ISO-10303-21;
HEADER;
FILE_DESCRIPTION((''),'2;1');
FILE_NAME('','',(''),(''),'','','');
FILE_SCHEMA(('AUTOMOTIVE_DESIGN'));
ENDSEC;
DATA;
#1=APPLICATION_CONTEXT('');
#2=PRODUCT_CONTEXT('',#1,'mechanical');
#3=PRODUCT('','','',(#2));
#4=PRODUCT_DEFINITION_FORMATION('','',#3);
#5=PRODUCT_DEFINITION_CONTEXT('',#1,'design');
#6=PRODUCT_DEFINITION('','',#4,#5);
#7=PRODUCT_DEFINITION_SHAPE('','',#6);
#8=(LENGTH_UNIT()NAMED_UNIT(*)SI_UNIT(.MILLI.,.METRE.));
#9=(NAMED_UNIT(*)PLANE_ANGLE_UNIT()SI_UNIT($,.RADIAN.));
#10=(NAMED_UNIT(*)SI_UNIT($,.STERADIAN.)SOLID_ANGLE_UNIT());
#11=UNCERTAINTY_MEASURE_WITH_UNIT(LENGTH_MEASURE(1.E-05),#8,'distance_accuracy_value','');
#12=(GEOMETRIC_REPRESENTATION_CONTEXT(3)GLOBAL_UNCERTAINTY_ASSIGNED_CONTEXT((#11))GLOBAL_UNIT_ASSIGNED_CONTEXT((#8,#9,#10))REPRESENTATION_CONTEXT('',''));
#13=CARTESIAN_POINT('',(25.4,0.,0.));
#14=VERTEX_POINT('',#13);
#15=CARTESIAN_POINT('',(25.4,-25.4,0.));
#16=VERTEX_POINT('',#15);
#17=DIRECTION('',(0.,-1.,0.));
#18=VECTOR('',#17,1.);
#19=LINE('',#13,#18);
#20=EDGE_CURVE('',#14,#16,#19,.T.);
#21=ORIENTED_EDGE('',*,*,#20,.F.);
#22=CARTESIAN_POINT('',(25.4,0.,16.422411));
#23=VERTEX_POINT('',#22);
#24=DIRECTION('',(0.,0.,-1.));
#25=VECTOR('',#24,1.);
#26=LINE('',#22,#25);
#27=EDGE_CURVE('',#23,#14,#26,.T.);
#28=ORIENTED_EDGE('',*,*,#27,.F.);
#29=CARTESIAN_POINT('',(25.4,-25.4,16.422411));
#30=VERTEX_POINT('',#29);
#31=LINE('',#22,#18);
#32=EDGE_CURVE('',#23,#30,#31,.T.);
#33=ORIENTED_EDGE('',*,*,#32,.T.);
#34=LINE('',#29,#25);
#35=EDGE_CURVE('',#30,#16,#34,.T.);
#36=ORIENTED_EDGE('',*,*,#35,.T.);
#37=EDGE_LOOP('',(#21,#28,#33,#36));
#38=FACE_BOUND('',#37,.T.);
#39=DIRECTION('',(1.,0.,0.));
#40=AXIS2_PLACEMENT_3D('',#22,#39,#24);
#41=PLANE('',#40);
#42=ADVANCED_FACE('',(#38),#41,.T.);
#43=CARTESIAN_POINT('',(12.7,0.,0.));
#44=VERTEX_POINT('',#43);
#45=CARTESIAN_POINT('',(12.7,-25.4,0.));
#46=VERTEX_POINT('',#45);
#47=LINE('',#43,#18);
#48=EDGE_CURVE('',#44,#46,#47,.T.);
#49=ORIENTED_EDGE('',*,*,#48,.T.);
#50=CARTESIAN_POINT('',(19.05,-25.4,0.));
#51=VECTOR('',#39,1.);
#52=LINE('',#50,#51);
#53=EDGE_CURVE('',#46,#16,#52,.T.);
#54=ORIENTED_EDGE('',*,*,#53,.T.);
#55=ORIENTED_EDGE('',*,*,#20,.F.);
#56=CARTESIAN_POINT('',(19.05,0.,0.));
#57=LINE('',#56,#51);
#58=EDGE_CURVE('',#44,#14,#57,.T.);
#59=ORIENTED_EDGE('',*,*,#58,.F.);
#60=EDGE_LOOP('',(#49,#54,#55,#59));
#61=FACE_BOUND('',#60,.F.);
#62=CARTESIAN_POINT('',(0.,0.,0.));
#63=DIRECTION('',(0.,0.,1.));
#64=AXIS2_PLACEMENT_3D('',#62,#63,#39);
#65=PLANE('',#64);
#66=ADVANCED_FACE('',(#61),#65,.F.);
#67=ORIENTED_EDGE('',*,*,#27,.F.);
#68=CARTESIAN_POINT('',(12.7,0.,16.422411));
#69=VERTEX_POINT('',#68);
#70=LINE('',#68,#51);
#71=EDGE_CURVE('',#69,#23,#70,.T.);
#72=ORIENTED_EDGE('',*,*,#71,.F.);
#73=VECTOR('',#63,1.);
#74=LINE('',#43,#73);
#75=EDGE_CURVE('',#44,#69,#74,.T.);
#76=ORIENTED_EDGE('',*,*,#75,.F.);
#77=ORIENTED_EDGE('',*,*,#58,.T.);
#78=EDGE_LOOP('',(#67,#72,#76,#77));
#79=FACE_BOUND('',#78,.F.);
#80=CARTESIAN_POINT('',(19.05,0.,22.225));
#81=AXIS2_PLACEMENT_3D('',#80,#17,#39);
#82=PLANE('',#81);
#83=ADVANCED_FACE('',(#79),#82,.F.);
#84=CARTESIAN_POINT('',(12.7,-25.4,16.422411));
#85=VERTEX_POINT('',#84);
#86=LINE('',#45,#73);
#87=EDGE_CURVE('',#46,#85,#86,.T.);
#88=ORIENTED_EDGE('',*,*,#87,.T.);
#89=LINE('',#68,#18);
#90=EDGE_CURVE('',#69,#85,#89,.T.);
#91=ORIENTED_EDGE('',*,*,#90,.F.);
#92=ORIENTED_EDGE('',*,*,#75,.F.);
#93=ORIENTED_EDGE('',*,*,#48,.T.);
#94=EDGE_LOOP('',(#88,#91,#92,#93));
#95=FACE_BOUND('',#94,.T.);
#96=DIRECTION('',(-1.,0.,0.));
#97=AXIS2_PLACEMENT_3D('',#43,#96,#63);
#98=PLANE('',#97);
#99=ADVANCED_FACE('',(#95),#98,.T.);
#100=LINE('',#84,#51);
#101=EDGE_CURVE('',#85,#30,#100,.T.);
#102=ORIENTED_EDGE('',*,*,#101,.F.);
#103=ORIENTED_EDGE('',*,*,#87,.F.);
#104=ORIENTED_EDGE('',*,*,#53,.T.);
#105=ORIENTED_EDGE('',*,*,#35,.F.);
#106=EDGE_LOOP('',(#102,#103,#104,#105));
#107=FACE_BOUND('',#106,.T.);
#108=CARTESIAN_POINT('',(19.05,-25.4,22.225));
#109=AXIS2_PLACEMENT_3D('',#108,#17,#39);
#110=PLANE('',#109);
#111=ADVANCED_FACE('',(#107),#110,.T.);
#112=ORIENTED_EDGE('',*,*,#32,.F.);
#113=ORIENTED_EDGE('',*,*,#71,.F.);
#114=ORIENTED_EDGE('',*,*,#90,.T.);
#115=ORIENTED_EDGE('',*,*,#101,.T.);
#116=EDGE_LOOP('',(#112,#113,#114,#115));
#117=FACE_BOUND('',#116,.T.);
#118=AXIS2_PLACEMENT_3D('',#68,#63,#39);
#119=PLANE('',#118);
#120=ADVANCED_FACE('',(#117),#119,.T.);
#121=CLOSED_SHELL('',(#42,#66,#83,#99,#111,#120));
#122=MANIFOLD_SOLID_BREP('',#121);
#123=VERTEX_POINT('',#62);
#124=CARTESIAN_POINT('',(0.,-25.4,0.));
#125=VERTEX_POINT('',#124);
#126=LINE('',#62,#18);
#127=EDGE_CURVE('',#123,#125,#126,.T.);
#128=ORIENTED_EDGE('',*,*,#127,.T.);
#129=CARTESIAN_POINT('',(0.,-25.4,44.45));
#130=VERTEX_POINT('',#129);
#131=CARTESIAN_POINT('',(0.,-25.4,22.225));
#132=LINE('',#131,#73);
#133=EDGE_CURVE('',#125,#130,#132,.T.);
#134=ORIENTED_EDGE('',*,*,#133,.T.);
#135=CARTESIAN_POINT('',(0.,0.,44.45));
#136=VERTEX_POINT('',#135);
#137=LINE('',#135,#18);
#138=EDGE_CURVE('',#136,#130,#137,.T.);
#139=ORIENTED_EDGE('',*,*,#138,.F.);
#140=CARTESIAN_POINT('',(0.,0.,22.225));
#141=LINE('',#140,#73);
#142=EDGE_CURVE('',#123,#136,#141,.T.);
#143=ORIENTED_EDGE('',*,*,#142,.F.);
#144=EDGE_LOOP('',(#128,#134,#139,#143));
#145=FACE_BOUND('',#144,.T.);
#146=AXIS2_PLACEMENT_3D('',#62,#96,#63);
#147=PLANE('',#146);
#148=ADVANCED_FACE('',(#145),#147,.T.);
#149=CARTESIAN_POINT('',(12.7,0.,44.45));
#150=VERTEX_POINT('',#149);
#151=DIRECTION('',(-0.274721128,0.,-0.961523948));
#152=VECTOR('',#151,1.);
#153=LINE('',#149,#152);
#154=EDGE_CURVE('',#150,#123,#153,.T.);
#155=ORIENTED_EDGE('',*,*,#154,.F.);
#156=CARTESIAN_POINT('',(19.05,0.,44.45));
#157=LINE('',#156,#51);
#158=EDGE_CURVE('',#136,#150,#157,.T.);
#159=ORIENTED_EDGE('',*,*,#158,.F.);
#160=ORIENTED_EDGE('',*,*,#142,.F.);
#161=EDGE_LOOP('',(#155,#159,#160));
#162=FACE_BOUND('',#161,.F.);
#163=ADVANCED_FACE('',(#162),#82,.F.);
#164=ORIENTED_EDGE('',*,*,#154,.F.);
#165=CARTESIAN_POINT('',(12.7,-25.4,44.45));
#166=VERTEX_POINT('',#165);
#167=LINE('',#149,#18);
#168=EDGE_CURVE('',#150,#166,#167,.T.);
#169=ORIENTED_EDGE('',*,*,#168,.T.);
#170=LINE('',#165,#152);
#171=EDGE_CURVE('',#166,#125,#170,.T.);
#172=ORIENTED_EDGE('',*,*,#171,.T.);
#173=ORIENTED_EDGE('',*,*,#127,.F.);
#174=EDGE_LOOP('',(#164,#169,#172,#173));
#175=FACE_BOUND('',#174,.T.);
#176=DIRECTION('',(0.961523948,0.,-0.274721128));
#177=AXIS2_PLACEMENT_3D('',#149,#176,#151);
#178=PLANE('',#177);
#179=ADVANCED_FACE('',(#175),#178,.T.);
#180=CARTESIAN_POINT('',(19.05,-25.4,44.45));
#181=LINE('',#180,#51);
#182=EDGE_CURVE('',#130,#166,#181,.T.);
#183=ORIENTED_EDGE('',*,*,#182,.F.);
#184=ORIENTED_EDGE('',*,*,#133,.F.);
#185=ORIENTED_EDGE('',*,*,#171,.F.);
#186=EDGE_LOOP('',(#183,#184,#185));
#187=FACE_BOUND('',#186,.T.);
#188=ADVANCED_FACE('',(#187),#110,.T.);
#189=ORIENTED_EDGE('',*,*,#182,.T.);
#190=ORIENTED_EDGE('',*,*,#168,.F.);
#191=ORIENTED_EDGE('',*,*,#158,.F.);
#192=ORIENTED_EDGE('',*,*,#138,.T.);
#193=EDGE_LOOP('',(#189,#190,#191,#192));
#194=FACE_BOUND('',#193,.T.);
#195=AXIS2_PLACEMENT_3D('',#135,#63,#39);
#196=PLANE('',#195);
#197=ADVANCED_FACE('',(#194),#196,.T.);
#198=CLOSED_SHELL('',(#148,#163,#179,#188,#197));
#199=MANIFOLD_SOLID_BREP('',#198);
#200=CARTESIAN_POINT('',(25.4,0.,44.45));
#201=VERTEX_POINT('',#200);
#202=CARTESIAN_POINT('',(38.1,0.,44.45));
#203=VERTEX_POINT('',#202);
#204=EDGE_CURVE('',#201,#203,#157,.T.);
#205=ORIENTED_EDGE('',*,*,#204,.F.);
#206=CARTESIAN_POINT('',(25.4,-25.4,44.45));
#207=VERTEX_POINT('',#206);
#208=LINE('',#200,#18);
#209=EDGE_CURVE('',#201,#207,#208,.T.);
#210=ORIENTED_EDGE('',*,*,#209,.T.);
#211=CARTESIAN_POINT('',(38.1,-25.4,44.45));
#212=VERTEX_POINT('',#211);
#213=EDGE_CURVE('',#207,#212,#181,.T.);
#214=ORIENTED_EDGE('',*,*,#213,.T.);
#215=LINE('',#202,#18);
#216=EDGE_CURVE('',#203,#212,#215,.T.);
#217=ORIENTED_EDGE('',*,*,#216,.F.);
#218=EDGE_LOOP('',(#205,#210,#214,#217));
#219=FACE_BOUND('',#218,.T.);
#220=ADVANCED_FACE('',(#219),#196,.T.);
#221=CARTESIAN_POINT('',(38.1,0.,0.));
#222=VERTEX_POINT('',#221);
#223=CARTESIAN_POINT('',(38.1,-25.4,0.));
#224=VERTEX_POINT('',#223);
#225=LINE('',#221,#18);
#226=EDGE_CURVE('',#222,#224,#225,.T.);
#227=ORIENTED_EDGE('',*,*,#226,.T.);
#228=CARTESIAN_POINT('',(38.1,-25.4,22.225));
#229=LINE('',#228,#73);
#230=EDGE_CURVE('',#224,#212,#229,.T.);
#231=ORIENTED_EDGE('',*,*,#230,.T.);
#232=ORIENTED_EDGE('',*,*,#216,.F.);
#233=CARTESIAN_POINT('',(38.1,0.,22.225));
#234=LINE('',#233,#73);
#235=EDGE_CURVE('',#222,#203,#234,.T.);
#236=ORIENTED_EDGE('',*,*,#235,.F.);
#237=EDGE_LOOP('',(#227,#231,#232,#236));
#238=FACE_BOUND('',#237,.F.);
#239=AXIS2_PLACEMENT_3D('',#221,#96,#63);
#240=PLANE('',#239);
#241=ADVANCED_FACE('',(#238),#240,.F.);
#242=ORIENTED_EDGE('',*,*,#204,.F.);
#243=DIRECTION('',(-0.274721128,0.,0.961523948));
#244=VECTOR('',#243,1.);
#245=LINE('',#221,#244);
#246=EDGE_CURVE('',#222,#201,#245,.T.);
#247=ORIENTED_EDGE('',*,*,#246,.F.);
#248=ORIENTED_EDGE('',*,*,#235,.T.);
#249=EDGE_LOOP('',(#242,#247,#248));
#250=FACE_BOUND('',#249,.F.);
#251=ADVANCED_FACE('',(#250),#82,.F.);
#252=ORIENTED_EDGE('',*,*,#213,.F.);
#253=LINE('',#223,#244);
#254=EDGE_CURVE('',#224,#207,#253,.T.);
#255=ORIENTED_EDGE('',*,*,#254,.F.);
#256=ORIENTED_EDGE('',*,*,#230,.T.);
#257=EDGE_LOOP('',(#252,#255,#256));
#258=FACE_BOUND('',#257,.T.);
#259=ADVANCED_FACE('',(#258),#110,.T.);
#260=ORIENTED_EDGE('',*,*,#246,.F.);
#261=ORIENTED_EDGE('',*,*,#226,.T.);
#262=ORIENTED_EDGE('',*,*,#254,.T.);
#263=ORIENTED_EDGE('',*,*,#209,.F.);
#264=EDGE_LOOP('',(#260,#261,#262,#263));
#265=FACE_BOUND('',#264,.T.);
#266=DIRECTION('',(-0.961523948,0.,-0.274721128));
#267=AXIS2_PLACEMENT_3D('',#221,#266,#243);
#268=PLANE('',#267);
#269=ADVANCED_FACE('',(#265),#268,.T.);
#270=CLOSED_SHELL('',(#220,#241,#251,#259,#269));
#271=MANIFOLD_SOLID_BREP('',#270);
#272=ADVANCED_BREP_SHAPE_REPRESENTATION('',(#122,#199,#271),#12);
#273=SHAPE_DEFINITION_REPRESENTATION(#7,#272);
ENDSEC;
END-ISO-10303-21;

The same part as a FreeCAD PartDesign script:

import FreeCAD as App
import Part
import Sketcher
Q = App.Units.Quantity


def add_polygon(sketch, points):
    """Adds a closed chain of lines whose ends are joined by coincident constraints."""
    first, n = sketch.GeometryCount, len(points)
    for a, b in zip(points, points[1:] + points[:1]):
        sketch.addGeometry(Part.LineSegment(App.Vector(*a, 0), App.Vector(*b, 0)), False)
    for i in range(n):
        sketch.addConstraint(Sketcher.Constraint("Coincident", first + i, 2, first + (i + 1) % n, 1))

doc = App.newDocument("Part")
body = doc.addObject("PartDesign::Body", "Body")

# Sketch on XZ plane
sketch1 = doc.addObject("Sketcher::SketchObject", "Sketch")
body.addObject(sketch1)
sketch1.AttachmentSupport = (doc.XZ_Plane, [""])
sketch1.MapMode = "FlatFace"
add_polygon(sketch1, [(0, 44), (0, 0), (38, 0), (38, 44)])  # lines 0-3
sketch1.addConstraint(Sketcher.Constraint("Vertical", 0))
sketch1.addConstraint(Sketcher.Constraint("Horizontal", 1))
sketch1.addConstraint(Sketcher.Constraint("Vertical", 2))
sketch1.addConstraint(Sketcher.Constraint("Horizontal", 3))
sketch1.addConstraint(Sketcher.Constraint("Coincident", 0, 2, -1, 1))
sketch1.addConstraint(Sketcher.Constraint("DistanceX", 1, 1, 1, 2, Q("1.5 in")))
sketch1.addConstraint(Sketcher.Constraint("DistanceY", 0, 2, 0, 1, Q("1.75 in")))
pad1 = doc.addObject("PartDesign::Pad", "Pad")
body.addObject(pad1)
pad1.Profile = sketch1
pad1.Length = Q("1 in")
body2 = doc.addObject("PartDesign::Body", "Body001")

# Sketch on XZ plane
sketch2 = doc.addObject("Sketcher::SketchObject", "Sketch001")
body2.addObject(sketch2)
sketch2.AttachmentSupport = (doc.getObject("XZ_Plane001"), [""])
sketch2.MapMode = "FlatFace"
add_polygon(sketch2, [(25, 44), (13, 44), (0, 0), (13, 0), (13, 16), (25, 16), (25, 0), (38, 0)])  # lines 0-7
sketch2.addConstraint(Sketcher.Constraint("Horizontal", 0))
sketch2.addConstraint(Sketcher.Constraint("Horizontal", 2))
sketch2.addConstraint(Sketcher.Constraint("Vertical", 3))
sketch2.addConstraint(Sketcher.Constraint("Horizontal", 4))
sketch2.addConstraint(Sketcher.Constraint("Vertical", 5))
sketch2.addConstraint(Sketcher.Constraint("Horizontal", 6))
sketch2.addConstraint(Sketcher.Constraint("Coincident", 1, 2, -1, 1))
sketch2.addConstraint(Sketcher.Constraint("PointOnObject", 5, 2, -1))
sketch2.addConstraint(Sketcher.Constraint("Vertical", 0, 2, 2, 2))
sketch2.addConstraint(Sketcher.Constraint("Vertical", 5, 2, 7, 2))
sketch2.addConstraint(Sketcher.Constraint("Equal", 0, 2))
sketch2.addConstraint(Sketcher.Constraint("Equal", 4, 6))
sketch2.addConstraint(Sketcher.Constraint("DistanceX", 0, 2, 0, 1, Q("0.5 in")))
sketch2.addConstraint(Sketcher.Constraint("DistanceY", -1, 1, 0, 2, Q("1.75 in")))
sketch2.addConstraint(Sketcher.Constraint("DistanceY", 3, 1, 3, 2, Q("16.422411 mm")))
pad2 = doc.addObject("PartDesign::Pad", "Pad001")
body2.addObject(pad2)
pad2.Profile = sketch2
pad2.Length = Q("1 in")
body3 = doc.addObject("PartDesign::Body", "Body002")

# Sketch on XZ plane
sketch3 = doc.addObject("Sketcher::SketchObject", "Sketch002")
body3.addObject(sketch3)
sketch3.AttachmentSupport = (doc.getObject("XZ_Plane002"), [""])
sketch3.MapMode = "FlatFace"
add_polygon(sketch3, [(25, 44), (13, 44), (0, 0), (13, 0), (13, 16), (25, 16), (25, 0), (38, 0)])  # lines 0-7
sketch3.addConstraint(Sketcher.Constraint("Horizontal", 0))
sketch3.addConstraint(Sketcher.Constraint("Horizontal", 2))
sketch3.addConstraint(Sketcher.Constraint("Vertical", 3))
sketch3.addConstraint(Sketcher.Constraint("Horizontal", 4))
sketch3.addConstraint(Sketcher.Constraint("Vertical", 5))
sketch3.addConstraint(Sketcher.Constraint("Horizontal", 6))
sketch3.addConstraint(Sketcher.Constraint("Coincident", 1, 2, -1, 1))
sketch3.addConstraint(Sketcher.Constraint("PointOnObject", 5, 2, -1))
sketch3.addConstraint(Sketcher.Constraint("Vertical", 0, 2, 2, 2))
sketch3.addConstraint(Sketcher.Constraint("Vertical", 5, 2, 7, 2))
sketch3.addConstraint(Sketcher.Constraint("Equal", 0, 2))
sketch3.addConstraint(Sketcher.Constraint("Equal", 4, 6))
sketch3.addConstraint(Sketcher.Constraint("DistanceX", 0, 2, 0, 1, Q("0.5 in")))
sketch3.addConstraint(Sketcher.Constraint("DistanceY", -1, 1, 0, 2, Q("1.75 in")))
sketch3.addConstraint(Sketcher.Constraint("DistanceY", 3, 1, 3, 2, Q("16.422411 mm")))
pad3 = doc.addObject("PartDesign::Pad", "Pad002")
body3.addObject(pad3)
pad3.Profile = sketch3
pad3.Length = Q("1 in")
body.AllowCompound = True
doc.recompute()

body4 = doc.addObject("PartDesign::Body", "Body003")
body4.BaseFeature = body3
boolean = doc.addObject("PartDesign::Boolean", "Boolean")
body.addObject(boolean)
boolean.Type = "Cut"
boolean.addObjects([body4])
doc.recompute()

boolean2 = doc.addObject("PartDesign::Boolean", "Boolean001")
body2.addObject(boolean2)
boolean2.Type = "Cut"
boolean2.addObjects([body3])

doc.recompute()
